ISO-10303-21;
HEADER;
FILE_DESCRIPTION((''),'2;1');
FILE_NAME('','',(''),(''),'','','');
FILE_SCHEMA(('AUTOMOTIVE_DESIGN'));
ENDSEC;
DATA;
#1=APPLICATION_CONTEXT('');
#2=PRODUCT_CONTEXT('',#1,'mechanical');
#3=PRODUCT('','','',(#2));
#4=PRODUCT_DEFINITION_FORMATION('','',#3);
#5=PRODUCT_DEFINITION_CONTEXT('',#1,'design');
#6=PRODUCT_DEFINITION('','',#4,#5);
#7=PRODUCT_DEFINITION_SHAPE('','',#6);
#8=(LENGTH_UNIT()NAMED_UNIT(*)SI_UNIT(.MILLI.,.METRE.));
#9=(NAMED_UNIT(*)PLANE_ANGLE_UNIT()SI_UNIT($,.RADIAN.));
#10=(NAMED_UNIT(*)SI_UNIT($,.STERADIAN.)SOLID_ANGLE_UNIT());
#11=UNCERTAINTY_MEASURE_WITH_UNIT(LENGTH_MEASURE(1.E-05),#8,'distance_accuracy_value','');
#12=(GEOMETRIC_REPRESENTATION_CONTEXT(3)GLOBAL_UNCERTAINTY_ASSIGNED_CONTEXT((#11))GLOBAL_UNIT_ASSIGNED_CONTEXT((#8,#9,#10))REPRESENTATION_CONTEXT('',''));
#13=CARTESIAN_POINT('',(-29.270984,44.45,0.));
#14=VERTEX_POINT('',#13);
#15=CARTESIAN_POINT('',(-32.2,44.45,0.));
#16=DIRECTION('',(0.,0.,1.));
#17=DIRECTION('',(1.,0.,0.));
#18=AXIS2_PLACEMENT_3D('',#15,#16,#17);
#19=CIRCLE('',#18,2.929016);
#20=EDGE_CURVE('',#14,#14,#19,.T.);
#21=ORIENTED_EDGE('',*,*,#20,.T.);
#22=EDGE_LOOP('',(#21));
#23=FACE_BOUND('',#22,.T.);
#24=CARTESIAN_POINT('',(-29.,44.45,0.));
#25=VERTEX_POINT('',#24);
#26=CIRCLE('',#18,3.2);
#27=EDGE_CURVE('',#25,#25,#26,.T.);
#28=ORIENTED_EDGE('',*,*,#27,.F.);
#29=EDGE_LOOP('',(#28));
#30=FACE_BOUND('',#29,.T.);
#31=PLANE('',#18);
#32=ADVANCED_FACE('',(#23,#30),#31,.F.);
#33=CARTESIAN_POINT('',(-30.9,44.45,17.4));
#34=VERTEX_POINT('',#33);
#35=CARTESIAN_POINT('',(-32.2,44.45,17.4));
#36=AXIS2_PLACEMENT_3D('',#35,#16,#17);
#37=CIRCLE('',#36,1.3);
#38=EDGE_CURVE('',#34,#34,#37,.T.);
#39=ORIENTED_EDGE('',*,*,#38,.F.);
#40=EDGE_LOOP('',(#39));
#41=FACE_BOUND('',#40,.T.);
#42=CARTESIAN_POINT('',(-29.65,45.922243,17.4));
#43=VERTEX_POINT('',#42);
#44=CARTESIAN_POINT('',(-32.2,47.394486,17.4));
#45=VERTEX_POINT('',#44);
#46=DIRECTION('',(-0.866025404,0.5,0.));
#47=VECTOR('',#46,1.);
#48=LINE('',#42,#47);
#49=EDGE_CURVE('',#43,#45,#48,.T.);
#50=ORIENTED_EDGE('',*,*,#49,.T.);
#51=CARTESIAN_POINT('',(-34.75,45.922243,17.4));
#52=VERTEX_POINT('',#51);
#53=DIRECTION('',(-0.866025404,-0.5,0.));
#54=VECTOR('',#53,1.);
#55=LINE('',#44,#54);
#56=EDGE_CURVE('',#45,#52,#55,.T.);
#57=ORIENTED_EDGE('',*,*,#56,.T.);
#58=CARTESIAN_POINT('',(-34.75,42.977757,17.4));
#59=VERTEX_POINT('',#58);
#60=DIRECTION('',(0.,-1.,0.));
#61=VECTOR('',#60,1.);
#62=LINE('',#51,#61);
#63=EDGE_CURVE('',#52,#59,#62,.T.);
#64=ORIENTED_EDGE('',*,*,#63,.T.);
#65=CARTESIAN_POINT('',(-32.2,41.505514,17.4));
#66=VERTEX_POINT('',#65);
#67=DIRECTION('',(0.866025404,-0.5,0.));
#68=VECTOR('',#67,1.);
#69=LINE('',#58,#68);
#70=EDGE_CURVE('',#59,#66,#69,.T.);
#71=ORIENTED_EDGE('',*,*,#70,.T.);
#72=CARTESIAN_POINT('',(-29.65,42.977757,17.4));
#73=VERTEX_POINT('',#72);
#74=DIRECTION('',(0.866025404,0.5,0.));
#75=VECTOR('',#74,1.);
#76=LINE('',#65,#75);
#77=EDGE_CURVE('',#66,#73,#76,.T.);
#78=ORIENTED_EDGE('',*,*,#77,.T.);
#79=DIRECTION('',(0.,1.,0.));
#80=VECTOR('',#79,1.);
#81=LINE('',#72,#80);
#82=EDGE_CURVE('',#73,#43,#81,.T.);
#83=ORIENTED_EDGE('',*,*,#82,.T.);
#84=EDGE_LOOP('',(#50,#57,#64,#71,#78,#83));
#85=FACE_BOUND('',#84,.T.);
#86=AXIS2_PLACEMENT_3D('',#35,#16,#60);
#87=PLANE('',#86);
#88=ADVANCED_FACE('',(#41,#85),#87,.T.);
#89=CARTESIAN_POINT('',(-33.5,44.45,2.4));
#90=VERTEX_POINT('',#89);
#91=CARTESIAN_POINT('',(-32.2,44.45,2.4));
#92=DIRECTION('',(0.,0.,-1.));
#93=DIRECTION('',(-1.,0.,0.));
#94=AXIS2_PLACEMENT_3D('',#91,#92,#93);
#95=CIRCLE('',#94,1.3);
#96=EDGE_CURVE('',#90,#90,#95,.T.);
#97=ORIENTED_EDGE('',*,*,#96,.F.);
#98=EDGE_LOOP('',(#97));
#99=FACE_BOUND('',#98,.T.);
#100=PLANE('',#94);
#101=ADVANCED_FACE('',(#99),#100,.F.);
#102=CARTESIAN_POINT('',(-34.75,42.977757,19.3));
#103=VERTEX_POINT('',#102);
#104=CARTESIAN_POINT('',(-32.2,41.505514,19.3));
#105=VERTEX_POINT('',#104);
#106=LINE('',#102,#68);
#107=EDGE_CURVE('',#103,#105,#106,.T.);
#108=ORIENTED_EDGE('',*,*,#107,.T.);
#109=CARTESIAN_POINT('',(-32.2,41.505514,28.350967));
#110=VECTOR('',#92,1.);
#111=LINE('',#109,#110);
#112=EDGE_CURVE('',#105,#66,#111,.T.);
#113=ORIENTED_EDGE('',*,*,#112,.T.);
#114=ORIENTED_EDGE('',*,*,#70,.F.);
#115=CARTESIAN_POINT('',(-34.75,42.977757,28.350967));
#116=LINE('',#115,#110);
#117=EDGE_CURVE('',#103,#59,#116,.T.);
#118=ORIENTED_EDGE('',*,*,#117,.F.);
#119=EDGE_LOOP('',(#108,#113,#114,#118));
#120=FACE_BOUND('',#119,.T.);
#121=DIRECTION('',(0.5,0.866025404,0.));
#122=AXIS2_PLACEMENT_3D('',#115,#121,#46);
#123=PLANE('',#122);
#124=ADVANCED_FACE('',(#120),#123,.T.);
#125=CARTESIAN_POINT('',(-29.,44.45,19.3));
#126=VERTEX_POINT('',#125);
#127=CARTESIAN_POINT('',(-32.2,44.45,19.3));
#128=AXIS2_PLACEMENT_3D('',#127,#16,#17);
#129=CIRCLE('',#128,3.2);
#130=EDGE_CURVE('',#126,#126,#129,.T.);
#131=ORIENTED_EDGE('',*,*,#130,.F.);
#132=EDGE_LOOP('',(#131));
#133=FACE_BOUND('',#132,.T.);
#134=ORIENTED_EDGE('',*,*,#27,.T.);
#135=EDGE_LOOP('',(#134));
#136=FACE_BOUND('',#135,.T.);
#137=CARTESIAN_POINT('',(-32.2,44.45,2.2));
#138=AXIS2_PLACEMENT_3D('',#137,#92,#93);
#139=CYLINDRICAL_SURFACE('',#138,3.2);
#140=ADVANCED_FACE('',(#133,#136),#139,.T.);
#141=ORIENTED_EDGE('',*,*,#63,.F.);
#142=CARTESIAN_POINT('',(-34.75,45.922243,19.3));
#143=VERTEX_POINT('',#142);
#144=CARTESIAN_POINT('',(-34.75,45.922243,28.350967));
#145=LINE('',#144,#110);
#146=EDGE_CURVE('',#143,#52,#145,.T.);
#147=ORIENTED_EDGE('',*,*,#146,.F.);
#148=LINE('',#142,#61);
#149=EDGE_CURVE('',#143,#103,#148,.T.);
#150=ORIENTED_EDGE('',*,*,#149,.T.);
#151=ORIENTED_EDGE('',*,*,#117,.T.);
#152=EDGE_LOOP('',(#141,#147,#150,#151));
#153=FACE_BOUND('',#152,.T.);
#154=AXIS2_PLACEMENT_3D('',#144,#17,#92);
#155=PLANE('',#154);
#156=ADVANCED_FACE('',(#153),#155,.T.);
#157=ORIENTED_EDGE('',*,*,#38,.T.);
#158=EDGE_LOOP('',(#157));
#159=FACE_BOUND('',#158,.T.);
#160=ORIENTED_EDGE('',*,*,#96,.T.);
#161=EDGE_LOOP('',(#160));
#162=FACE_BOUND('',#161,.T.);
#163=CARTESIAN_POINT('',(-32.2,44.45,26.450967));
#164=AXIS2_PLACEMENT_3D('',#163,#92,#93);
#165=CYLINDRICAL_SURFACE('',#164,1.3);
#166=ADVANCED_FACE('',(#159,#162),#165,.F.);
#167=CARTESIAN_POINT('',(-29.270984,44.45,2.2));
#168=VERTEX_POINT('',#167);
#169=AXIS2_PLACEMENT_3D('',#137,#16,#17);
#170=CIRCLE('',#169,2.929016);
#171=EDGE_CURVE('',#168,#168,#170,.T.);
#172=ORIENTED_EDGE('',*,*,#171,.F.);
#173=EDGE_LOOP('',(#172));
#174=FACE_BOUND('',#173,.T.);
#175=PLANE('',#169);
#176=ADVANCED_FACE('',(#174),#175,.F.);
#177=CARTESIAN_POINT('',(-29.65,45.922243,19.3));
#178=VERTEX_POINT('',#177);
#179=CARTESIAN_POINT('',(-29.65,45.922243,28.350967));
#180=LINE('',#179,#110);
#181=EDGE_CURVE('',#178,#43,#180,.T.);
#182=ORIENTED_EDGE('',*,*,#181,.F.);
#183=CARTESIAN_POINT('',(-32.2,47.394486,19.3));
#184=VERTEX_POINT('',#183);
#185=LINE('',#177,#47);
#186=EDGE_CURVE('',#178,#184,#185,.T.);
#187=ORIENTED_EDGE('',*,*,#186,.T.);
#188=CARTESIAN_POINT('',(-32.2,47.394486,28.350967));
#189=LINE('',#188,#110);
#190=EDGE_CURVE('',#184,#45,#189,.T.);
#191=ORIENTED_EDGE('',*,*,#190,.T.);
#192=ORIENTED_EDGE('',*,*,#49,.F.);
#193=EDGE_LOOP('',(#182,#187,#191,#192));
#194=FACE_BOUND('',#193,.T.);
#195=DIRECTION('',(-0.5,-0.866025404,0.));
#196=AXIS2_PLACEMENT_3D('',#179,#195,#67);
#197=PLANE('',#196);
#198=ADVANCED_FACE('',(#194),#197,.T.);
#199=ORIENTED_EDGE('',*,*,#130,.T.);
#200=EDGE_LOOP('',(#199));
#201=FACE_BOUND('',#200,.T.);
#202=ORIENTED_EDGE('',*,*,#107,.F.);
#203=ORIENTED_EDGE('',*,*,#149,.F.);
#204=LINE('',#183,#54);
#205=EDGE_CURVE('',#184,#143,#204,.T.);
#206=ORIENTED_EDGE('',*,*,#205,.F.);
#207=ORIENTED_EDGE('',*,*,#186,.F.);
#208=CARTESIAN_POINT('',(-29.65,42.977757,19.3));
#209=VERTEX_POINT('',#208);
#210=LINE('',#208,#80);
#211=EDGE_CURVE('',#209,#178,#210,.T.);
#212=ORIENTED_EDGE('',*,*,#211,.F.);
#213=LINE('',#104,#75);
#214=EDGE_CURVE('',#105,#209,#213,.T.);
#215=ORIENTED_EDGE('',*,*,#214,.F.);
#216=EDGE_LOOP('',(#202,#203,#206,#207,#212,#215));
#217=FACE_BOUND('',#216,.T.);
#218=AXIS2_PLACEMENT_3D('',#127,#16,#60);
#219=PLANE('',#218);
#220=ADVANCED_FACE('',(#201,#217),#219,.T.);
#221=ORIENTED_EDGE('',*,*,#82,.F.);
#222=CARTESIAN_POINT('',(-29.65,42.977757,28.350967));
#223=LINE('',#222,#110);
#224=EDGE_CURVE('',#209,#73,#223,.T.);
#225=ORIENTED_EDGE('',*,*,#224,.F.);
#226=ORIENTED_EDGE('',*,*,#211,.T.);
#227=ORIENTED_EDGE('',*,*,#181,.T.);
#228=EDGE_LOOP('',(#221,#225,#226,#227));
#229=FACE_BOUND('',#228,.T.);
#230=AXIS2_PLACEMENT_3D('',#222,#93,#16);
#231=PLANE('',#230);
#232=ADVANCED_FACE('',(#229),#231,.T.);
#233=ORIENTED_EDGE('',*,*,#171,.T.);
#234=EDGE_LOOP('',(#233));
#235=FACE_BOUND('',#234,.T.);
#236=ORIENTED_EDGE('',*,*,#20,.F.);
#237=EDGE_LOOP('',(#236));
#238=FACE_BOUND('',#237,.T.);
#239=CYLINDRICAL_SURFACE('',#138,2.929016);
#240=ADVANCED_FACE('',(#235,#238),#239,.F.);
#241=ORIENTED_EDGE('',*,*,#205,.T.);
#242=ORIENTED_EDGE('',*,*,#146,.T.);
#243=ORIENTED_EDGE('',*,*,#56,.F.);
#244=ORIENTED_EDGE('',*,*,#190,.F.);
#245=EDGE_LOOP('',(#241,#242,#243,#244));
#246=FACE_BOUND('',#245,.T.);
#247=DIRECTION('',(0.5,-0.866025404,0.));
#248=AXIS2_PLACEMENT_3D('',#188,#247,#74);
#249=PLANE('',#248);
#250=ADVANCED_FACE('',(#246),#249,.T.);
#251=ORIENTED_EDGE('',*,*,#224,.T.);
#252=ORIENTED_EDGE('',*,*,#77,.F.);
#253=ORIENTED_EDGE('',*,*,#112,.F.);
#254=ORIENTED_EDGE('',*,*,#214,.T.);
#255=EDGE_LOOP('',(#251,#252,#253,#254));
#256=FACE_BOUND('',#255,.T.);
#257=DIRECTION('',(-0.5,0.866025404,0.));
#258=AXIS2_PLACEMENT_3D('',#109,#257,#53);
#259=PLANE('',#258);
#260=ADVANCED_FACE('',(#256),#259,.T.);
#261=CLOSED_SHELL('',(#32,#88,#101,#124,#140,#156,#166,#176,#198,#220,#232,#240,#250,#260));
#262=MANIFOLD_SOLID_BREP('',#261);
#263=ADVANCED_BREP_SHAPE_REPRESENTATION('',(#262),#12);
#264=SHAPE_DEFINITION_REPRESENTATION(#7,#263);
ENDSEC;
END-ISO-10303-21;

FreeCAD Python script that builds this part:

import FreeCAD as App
import Part
import Sketcher

V = App.Vector
Q = App.Units.Quantity

doc = App.newDocument("Part")
params = doc.addObject("Spreadsheet::Sheet", "Params")
for row, (alias, value) in enumerate([
    ("sketch1_diameter", "6.4 mm"),
    ("pad1_length", "2.2 mm"),
    ("sketch2_diameter", "6.4 mm"),
    ("sketch2_diameter2", "2.6 mm"),
    ("pad2_length", "15.2 mm"),
    ("sketch3_diameter", "6.4 mm"),
    ("pad3_length", "1.9 mm"),
    ("sketch4_diameter", "2.6 mm"),
    ("pad4_length", "0.2 mm"),
], start=1):
    params.set(f"A{row}", alias)
    params.set(f"B{row}", "=" + value)
    params.setAlias(f"B{row}", alias)

body = doc.addObject("PartDesign::Body", "Body")

sketch1 = body.newObject("Sketcher::SketchObject", "Sketch")
sketch1.AttachmentSupport = (doc.getObject("XY_Plane"), [""])
sketch1.MapMode = "FlatFace"
sketch1.addGeometry([
    Part.Circle(V(-32.2, 44.45, 0), V(0, 0, 1), 3.2),
    Part.Circle(V(-32.2, 44.45, 0), V(0, 0, 1), 2.929016),
], False)
sketch1.addConstraint([
    Sketcher.Constraint("Coincident", 1, 3, 0, 3),
    Sketcher.Constraint("Diameter", 0, 6.4),
    Sketcher.Constraint("DistanceX", 0, 3, -1, 1, 32.2),
    Sketcher.Constraint("DistanceY", -1, 1, 0, 3, 44.45),
    Sketcher.Constraint("Diameter", 1, 5.858033),
])
sketch1.setExpression("Constraints[1]", "Params.sketch1_diameter")
pad1 = body.newObject("PartDesign::Pad", "Pad")
pad1.Profile = sketch1
pad1.setExpression("Length", "Params.pad1_length")

sketch2 = body.newObject("Sketcher::SketchObject", "Sketch001")
sketch2.AttachmentSupport = (doc.getObject("XY_Plane"), [""])
sketch2.MapMode = "FlatFace"
sketch2.AttachmentOffset = App.Placement(V(0, 0, 2.2), App.Rotation())
sketch2.addGeometry([
    Part.Circle(V(-32.2, 44.45, 0), V(0, 0, 1), 3.2),
    Part.Circle(V(-32.2, 44.45, 0), V(0, 0, 1), 1.3),
], False)
sketch2.addConstraint([
    Sketcher.Constraint("Coincident", 1, 3, 0, 3),
    Sketcher.Constraint("Diameter", 0, 6.4),
    Sketcher.Constraint("Diameter", 1, 2.6),
    Sketcher.Constraint("DistanceX", 0, 3, -1, 1, 32.2),
    Sketcher.Constraint("DistanceY", -1, 1, 0, 3, 44.45),
])
sketch2.setExpression("Constraints[1]", "Params.sketch2_diameter")
sketch2.setExpression("Constraints[2]", "Params.sketch2_diameter2")
pad2 = body.newObject("PartDesign::Pad", "Pad001")
pad2.Profile = sketch2
pad2.setExpression("Length", "Params.pad2_length")

sketch3 = body.newObject("Sketcher::SketchObject", "Sketch002")
sketch3.AttachmentSupport = (doc.getObject("XY_Plane"), [""])
sketch3.MapMode = "FlatFace"
sketch3.AttachmentOffset = App.Placement(V(0, 0, 17.4), App.Rotation())
sketch3.addGeometry([
    Part.Circle(V(-32.2, 44.45, 0), V(0, 0, 1), 3.2),
    Part.LineSegment(V(-32.2, 41.505514, 0), V(-34.75, 42.977757, 0)),
    Part.LineSegment(V(-34.75, 42.977757, 0), V(-34.75, 45.922243, 0)),
    Part.LineSegment(V(-34.75, 45.922243, 0), V(-32.2, 47.394486, 0)),
    Part.LineSegment(V(-32.2, 47.394486, 0), V(-29.65, 45.922243, 0)),
    Part.LineSegment(V(-29.65, 45.922243, 0), V(-29.65, 42.977757, 0)),
    Part.LineSegment(V(-29.65, 42.977757, 0), V(-32.2, 41.505514, 0)),
], False)
sketch3.addConstraint([
    Sketcher.Constraint("Coincident", 1, 2, 2, 1),
    Sketcher.Constraint("Coincident", 2, 2, 3, 1),
    Sketcher.Constraint("Coincident", 3, 2, 4, 1),
    Sketcher.Constraint("Coincident", 4, 2, 5, 1),
    Sketcher.Constraint("Coincident", 5, 2, 6, 1),
    Sketcher.Constraint("Coincident", 6, 2, 1, 1),
    Sketcher.Constraint("Vertical", 2),
    Sketcher.Constraint("Vertical", 5),
    Sketcher.Constraint("Parallel", 1, 4),
    Sketcher.Constraint("Parallel", 3, 6),
    Sketcher.Constraint("Horizontal", 2, 2, 4, 2),
    Sketcher.Constraint("Horizontal", 1, 2, 5, 2),
    Sketcher.Constraint("Vertical", 0, 3, 3, 2),
    Sketcher.Constraint("Vertical", 3, 2, 6, 2),
    Sketcher.Constraint("Diameter", 0, 6.4),
    Sketcher.Constraint("Angle", 1, Q("150 deg")),
    Sketcher.Constraint("DistanceX", 0, 3, -1, 1, 32.2),
    Sketcher.Constraint("DistanceX", 2, 2, 4, 2, 5.1),
    Sketcher.Constraint("DistanceY", -1, 1, 0, 3, 44.45),
    Sketcher.Constraint("DistanceY", 2, 1, 2, 2, 2.944486),
    Sketcher.Constraint("DistanceY", -1, 1, 1, 2, 42.977757),
])
sketch3.setExpression("Constraints[14]", "Params.sketch3_diameter")
pad3 = body.newObject("PartDesign::Pad", "Pad002")
pad3.Profile = sketch3
pad3.setExpression("Length", "Params.pad3_length")

sketch4 = body.newObject("Sketcher::SketchObject", "Sketch003")
sketch4.AttachmentSupport = (doc.getObject("XY_Plane"), [""])
sketch4.MapMode = "FlatFace"
sketch4.AttachmentOffset = App.Placement(V(0, 0, 2.2), App.Rotation())
sketch4.addGeometry(Part.Circle(V(-32.2, 44.45, 0), V(0, 0, 1), 1.3), False)
sketch4.addConstraint([
    Sketcher.Constraint("Diameter", 0, 2.6),
    Sketcher.Constraint("DistanceX", 0, 3, -1, 1, 32.2),
    Sketcher.Constraint("DistanceY", -1, 1, 0, 3, 44.45),
])
sketch4.setExpression("Constraints[0]", "Params.sketch4_diameter")
pad4 = body.newObject("PartDesign::Pad", "Pad003")
pad4.Profile = sketch4
pad4.setExpression("Length", "Params.pad4_length")

doc.recompute()
